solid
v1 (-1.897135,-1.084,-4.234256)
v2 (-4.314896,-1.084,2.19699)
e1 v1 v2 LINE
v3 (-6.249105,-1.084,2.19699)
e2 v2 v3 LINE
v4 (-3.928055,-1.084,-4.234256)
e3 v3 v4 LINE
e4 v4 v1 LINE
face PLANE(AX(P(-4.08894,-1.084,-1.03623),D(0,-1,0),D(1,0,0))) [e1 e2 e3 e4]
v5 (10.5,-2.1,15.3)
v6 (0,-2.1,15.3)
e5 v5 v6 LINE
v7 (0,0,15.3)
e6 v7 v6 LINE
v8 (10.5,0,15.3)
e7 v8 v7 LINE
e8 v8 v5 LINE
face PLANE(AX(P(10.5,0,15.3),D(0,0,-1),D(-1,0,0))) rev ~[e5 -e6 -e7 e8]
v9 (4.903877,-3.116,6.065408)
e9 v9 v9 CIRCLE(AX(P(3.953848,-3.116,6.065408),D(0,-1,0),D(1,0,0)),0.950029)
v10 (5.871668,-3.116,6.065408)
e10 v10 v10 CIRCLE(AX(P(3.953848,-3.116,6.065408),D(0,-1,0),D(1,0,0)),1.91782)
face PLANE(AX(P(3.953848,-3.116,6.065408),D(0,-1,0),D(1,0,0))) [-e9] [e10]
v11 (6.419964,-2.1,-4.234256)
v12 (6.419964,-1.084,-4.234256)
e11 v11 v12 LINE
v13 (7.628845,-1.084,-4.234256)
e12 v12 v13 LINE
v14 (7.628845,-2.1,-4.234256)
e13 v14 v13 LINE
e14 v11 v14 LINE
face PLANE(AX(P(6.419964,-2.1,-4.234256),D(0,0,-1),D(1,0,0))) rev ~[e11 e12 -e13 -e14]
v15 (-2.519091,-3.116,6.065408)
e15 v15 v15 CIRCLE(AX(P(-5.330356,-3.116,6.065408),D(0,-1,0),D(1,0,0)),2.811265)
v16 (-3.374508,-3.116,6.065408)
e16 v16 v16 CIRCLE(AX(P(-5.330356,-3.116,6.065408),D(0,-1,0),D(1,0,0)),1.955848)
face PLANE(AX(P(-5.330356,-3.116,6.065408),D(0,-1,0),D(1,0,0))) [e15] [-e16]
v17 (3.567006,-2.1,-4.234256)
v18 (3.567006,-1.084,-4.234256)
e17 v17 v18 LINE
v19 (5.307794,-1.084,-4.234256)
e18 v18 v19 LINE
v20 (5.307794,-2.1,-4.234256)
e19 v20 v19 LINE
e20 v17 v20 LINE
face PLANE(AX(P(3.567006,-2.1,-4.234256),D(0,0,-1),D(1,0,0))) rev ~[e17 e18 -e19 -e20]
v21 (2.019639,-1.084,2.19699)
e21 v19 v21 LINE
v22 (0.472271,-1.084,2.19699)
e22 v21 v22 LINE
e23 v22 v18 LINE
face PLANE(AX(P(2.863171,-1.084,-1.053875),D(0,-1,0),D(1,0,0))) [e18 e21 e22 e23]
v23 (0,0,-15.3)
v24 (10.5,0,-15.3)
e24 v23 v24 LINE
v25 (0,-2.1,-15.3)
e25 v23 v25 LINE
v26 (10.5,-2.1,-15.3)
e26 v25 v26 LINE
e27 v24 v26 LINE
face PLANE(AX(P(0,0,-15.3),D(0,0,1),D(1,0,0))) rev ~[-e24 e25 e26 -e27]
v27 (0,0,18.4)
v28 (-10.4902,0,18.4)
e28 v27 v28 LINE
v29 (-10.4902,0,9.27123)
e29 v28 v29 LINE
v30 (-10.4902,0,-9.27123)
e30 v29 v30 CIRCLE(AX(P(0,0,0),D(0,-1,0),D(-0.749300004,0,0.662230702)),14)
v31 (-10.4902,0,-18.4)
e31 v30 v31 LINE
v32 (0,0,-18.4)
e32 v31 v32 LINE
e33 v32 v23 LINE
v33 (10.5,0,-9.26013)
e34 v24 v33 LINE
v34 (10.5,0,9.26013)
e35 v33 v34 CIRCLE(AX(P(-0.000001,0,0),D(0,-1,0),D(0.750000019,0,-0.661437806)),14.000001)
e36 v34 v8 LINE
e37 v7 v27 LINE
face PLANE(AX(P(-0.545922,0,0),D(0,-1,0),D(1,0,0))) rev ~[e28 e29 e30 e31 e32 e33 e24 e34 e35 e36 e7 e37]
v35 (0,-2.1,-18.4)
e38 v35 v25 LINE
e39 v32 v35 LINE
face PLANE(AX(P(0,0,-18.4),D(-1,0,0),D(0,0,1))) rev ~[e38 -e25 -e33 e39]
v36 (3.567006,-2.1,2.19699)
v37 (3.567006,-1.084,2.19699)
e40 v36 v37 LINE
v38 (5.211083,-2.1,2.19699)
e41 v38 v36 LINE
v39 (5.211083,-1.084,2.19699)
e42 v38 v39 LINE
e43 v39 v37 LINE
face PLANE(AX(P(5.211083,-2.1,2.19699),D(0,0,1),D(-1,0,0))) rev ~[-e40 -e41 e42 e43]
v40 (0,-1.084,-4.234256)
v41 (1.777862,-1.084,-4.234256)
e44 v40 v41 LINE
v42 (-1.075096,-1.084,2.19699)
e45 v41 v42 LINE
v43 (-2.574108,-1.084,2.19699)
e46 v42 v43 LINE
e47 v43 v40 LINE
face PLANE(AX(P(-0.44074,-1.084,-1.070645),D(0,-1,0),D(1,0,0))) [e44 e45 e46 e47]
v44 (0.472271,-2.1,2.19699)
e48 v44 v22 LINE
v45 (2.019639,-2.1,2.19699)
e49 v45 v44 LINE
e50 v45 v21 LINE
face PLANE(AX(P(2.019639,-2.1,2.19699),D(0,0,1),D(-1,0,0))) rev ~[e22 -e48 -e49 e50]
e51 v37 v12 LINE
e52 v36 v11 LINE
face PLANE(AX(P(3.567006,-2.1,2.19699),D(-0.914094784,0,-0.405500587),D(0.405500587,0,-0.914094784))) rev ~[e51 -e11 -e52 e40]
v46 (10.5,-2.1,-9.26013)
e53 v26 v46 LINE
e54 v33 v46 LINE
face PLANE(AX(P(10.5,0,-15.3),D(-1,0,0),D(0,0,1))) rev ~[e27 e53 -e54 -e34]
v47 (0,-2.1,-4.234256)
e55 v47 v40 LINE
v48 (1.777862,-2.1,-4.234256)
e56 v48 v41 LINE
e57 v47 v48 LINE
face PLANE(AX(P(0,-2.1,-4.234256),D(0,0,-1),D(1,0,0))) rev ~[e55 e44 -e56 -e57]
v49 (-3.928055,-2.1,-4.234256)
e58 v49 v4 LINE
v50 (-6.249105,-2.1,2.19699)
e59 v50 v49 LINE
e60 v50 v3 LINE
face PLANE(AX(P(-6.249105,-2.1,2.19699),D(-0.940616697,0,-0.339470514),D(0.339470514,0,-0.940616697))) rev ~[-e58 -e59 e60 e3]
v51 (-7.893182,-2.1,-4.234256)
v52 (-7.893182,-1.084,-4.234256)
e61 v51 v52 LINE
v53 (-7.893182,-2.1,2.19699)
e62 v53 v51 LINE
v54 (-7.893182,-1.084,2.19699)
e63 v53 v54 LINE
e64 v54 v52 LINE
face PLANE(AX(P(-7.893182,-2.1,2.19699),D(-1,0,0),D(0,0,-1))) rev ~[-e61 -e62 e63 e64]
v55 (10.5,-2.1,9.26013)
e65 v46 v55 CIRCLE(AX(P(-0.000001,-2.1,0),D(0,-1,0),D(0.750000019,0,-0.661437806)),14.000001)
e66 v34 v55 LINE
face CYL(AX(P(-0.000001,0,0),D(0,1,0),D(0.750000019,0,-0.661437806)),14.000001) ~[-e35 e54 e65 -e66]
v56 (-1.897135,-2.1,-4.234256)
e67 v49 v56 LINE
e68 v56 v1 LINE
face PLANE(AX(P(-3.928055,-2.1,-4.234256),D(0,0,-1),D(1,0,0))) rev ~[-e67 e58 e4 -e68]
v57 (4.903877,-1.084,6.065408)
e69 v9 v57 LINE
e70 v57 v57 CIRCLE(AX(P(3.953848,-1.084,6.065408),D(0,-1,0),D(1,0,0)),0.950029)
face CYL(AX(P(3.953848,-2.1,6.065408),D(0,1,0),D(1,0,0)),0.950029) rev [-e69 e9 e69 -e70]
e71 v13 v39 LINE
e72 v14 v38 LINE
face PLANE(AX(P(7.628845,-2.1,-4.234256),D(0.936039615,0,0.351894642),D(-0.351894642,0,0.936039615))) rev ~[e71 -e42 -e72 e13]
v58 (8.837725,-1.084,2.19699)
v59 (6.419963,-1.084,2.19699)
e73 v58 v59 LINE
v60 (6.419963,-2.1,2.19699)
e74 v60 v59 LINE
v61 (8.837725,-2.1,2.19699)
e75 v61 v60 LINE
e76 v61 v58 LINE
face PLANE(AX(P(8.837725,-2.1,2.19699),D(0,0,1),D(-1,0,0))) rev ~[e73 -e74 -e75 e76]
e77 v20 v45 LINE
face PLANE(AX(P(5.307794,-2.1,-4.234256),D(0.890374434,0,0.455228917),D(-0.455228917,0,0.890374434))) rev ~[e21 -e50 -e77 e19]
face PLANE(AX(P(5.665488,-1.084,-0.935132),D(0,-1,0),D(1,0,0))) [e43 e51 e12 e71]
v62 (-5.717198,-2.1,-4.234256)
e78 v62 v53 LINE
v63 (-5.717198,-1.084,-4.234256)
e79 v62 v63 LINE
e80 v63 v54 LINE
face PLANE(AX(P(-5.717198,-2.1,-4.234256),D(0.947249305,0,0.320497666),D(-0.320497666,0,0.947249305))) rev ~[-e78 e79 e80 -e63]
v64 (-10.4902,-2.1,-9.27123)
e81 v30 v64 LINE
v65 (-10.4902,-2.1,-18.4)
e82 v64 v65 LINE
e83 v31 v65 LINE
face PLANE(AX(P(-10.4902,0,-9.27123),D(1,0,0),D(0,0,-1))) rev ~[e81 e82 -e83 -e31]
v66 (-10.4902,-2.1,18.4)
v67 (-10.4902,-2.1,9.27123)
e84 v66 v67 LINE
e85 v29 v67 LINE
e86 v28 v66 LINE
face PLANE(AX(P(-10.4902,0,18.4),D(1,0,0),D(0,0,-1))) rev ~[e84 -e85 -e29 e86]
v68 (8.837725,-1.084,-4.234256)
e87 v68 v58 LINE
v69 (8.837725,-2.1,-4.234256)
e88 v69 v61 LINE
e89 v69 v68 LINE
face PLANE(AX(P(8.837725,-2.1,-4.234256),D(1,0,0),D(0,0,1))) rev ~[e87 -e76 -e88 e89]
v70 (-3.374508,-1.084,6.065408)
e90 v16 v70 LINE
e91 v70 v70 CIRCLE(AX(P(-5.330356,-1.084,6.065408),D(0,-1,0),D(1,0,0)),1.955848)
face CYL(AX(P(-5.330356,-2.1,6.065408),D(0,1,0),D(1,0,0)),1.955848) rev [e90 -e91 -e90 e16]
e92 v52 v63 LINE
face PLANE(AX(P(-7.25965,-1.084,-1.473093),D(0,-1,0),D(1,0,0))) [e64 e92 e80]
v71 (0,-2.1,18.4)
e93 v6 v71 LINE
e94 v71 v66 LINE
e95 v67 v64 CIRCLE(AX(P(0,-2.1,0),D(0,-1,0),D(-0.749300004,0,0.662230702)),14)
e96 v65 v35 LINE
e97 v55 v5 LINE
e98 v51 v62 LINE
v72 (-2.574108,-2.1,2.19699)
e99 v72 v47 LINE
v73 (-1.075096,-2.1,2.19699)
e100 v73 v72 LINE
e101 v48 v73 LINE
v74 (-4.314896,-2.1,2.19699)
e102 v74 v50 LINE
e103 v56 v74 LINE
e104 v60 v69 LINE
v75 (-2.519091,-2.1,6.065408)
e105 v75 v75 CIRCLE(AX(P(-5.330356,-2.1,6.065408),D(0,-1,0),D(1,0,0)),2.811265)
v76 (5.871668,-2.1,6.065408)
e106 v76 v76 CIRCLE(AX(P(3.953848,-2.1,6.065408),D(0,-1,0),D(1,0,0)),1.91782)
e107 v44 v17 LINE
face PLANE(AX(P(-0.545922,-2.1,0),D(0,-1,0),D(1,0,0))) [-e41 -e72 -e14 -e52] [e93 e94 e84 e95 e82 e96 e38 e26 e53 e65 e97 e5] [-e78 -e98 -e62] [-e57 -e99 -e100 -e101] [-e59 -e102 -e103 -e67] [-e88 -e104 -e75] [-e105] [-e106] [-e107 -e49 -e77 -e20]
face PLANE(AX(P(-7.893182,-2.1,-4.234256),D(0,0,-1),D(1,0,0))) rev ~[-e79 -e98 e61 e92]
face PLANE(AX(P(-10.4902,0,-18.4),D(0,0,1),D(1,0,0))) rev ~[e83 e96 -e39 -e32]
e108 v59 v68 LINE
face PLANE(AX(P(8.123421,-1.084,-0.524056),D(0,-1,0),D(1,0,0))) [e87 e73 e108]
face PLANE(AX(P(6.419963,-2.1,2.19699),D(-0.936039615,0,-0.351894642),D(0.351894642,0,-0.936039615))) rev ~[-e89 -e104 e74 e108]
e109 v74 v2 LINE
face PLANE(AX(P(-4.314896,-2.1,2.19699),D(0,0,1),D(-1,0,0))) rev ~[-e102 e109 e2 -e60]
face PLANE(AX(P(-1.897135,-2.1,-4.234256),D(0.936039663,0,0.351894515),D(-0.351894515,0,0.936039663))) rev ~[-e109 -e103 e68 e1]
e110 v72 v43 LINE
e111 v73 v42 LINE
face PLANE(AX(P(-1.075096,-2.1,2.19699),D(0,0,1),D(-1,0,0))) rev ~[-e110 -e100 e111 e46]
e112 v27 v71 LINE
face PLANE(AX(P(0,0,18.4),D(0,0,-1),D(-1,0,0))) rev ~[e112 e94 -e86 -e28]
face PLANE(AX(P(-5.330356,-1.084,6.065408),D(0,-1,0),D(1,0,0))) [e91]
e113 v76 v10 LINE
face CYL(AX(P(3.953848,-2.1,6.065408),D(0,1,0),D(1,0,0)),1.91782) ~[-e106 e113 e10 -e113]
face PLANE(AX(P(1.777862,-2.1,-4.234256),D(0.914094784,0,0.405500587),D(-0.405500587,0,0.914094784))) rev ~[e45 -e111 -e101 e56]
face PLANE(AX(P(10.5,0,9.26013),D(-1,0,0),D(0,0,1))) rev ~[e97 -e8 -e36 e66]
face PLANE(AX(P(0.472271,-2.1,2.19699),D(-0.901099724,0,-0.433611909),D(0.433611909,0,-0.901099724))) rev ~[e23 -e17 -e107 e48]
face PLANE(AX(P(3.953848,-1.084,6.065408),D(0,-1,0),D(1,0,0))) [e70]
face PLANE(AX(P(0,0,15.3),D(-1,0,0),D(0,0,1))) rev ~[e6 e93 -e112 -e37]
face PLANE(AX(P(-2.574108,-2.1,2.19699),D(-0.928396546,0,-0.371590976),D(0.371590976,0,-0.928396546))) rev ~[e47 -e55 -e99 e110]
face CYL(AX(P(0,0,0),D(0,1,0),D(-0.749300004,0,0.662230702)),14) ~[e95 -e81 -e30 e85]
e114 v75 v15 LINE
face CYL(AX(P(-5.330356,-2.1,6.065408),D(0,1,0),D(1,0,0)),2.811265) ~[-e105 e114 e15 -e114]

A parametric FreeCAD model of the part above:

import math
import FreeCAD as App
import Part
import Sketcher

V = App.Vector
Q = App.Units.Quantity

doc = App.newDocument("Part")
body = doc.addObject("PartDesign::Body", "Body")

# Sketch on XZ plane
sketch1 = doc.addObject("Sketcher::SketchObject", "Sketch")
body.addObject(sketch1)
sketch1.AttachmentSupport = (doc.XZ_Plane, [""])
sketch1.MapMode = "FlatFace"
sketch1.addGeometry(Part.LineSegment(V(-10.5, 18.4, 0), V(-10.5, 9.3, 0)), False)
sketch1.addGeometry(Part.ArcOfCircle(Part.Circle(V(0, 0, 0), V(0, 0, 1), 14), math.radians(139), math.radians(221)), False)
sketch1.addGeometry(Part.LineSegment(V(-10.5, -9.3, 0), V(-10.5, -18.4, 0)), False)
sketch1.addGeometry(Part.LineSegment(V(-10.5, -18.4, 0), V(0, -18.4, 0)), False)
sketch1.addGeometry(Part.LineSegment(V(0, -18.4, 0), V(0, -15.3, 0)), False)
sketch1.addGeometry(Part.LineSegment(V(0, -15.3, 0), V(10.5, -15.3, 0)), False)
sketch1.addGeometry(Part.LineSegment(V(10.5, -15.3, 0), V(10.5, -9.3, 0)), False)
sketch1.addGeometry(Part.ArcOfCircle(Part.Circle(V(0, 0, 0), V(0, 0, 1), 14), math.radians(-41), math.radians(41)), False)
sketch1.addGeometry(Part.LineSegment(V(10.5, 9.3, 0), V(10.5, 15.3, 0)), False)
sketch1.addGeometry(Part.LineSegment(V(10.5, 15.3, 0), V(0, 15.3, 0)), False)
sketch1.addGeometry(Part.LineSegment(V(0, 15.3, 0), V(0, 18.4, 0)), False)
sketch1.addGeometry(Part.LineSegment(V(0, 18.4, 0), V(-10.5, 18.4, 0)), False)
sketch1.addConstraint(Sketcher.Constraint("Coincident", 0, 2, 1, 1))
sketch1.addConstraint(Sketcher.Constraint("Coincident", 1, 2, 2, 1))
sketch1.addConstraint(Sketcher.Constraint("Coincident", 2, 2, 3, 1))
sketch1.addConstraint(Sketcher.Constraint("Coincident", 3, 2, 4, 1))
sketch1.addConstraint(Sketcher.Constraint("Coincident", 4, 2, 5, 1))
sketch1.addConstraint(Sketcher.Constraint("Coincident", 5, 2, 6, 1))
sketch1.addConstraint(Sketcher.Constraint("Coincident", 6, 2, 7, 1))
sketch1.addConstraint(Sketcher.Constraint("Coincident", 7, 2, 8, 1))
sketch1.addConstraint(Sketcher.Constraint("Coincident", 8, 2, 9, 1))
sketch1.addConstraint(Sketcher.Constraint("Coincident", 9, 2, 10, 1))
sketch1.addConstraint(Sketcher.Constraint("Coincident", 10, 2, 11, 1))
sketch1.addConstraint(Sketcher.Constraint("Coincident", 11, 2, 0, 1))
sketch1.addConstraint(Sketcher.Constraint("Vertical", 0))
sketch1.addConstraint(Sketcher.Constraint("Vertical", 2))
sketch1.addConstraint(Sketcher.Constraint("Horizontal", 3))
sketch1.addConstraint(Sketcher.Constraint("Vertical", 4))
sketch1.addConstraint(Sketcher.Constraint("Horizontal", 5))
sketch1.addConstraint(Sketcher.Constraint("Vertical", 6))
sketch1.addConstraint(Sketcher.Constraint("Vertical", 8))
sketch1.addConstraint(Sketcher.Constraint("Horizontal", 9))
sketch1.addConstraint(Sketcher.Constraint("Vertical", 10))
sketch1.addConstraint(Sketcher.Constraint("Horizontal", 11))
sketch1.addConstraint(Sketcher.Constraint("Coincident", 1, 3, -1, 1))
sketch1.addConstraint(Sketcher.Constraint("Coincident", 7, 3, -1, 1))
sketch1.addConstraint(Sketcher.Constraint("Equal", 1, 7))
sketch1.addConstraint(Sketcher.Constraint("Symmetric", 4, 2, 9, 2, -1, 1))
sketch1.addConstraint(Sketcher.Constraint("Symmetric", 3, 2, 10, 2, -1))
sketch1.addConstraint(Sketcher.Constraint("Vertical", 0, 2, 1, 2))
sketch1.addConstraint(Sketcher.Constraint("Vertical", 6, 2, 7, 2))
sketch1.addConstraint(Sketcher.Constraint("Radius", 1, Q("14 mm")))
sketch1.addConstraint(Sketcher.Constraint("DistanceX", 5, 1, 5, 2, Q("10.5 mm")))
sketch1.addConstraint(Sketcher.Constraint("DistanceY", 4, 1, 4, 2, Q("3.1 mm")))
sketch1.addConstraint(Sketcher.Constraint("DistanceY", 2, 2, -1, 1, Q("18.4 mm")))
sketch1.addConstraint(Sketcher.Constraint("DistanceX", 3, 1, 3, 2, Q("10.4902 mm")))
pad1 = doc.addObject("PartDesign::Pad", "Pad")
body.addObject(pad1)
pad1.Profile = sketch1
pad1.Length = 2.1

# Sketch on XZ plane
sketch2 = doc.addObject("Sketcher::SketchObject", "Sketch001")
body.addObject(sketch2)
sketch2.AttachmentSupport = (doc.XZ_Plane, [""])
sketch2.MapMode = "FlatFace"
sketch2.AttachmentOffset = App.Placement(V(0, 0, 2.1), App.Rotation())
sketch2.addGeometry(Part.LineSegment(V(-5.7, -4.2, 0), V(-7.9, 2.2, 0)), False)
sketch2.addGeometry(Part.LineSegment(V(-7.9, 2.2, 0), V(-7.9, -4.2, 0)), False)
sketch2.addGeometry(Part.LineSegment(V(-7.9, -4.2, 0), V(-5.7, -4.2, 0)), False)
sketch2.addGeometry(Part.LineSegment(V(-4.3, 2.2, 0), V(-6.2, 2.2, 0)), False)
sketch2.addGeometry(Part.LineSegment(V(-6.2, 2.2, 0), V(-3.9, -4.2, 0)), False)
sketch2.addGeometry(Part.LineSegment(V(-3.9, -4.2, 0), V(-1.9, -4.2, 0)), False)
sketch2.addGeometry(Part.LineSegment(V(-1.9, -4.2, 0), V(-4.3, 2.2, 0)), False)
sketch2.addGeometry(Part.LineSegment(V(-1.1, 2.2, 0), V(-2.6, 2.2, 0)), False)
sketch2.addGeometry(Part.LineSegment(V(-2.6, 2.2, 0), V(0, -4.2, 0)), False)
sketch2.addGeometry(Part.LineSegment(V(0, -4.2, 0), V(1.8, -4.2, 0)), False)
sketch2.addGeometry(Part.LineSegment(V(1.8, -4.2, 0), V(-1.1, 2.2, 0)), False)
sketch2.addGeometry(Part.LineSegment(V(2, 2.2, 0), V(0.5, 2.2, 0)), False)
sketch2.addGeometry(Part.LineSegment(V(0.5, 2.2, 0), V(3.6, -4.2, 0)), False)
sketch2.addGeometry(Part.LineSegment(V(3.6, -4.2, 0), V(5.3, -4.2, 0)), False)
sketch2.addGeometry(Part.LineSegment(V(5.3, -4.2, 0), V(2, 2.2, 0)), False)
sketch2.addGeometry(Part.LineSegment(V(5.2, 2.2, 0), V(3.6, 2.2, 0)), False)
sketch2.addGeometry(Part.LineSegment(V(3.6, 2.2, 0), V(6.4, -4.2, 0)), False)
sketch2.addGeometry(Part.LineSegment(V(6.4, -4.2, 0), V(7.6, -4.2, 0)), False)
sketch2.addGeometry(Part.LineSegment(V(7.6, -4.2, 0), V(5.2, 2.2, 0)), False)
sketch2.addGeometry(Part.LineSegment(V(8.8, 2.2, 0), V(6.4, 2.2, 0)), False)
sketch2.addGeometry(Part.LineSegment(V(6.4, 2.2, 0), V(8.8, -4.2, 0)), False)
sketch2.addGeometry(Part.LineSegment(V(8.8, -4.2, 0), V(8.8, 2.2, 0)), False)
sketch2.addGeometry(Part.Circle(V(-5.3, 6.1, 0), V(0, 0, 1), 2), False)
sketch2.addGeometry(Part.Circle(V(4, 6.1, 0), V(0, 0, 1), 1), False)
sketch2.addConstraint(Sketcher.Constraint("Coincident", 0, 2, 1, 1))
sketch2.addConstraint(Sketcher.Constraint("Coincident", 1, 2, 2, 1))
sketch2.addConstraint(Sketcher.Constraint("Coincident", 2, 2, 0, 1))
sketch2.addConstraint(Sketcher.Constraint("Coincident", 3, 2, 4, 1))
sketch2.addConstraint(Sketcher.Constraint("Coincident", 4, 2, 5, 1))
sketch2.addConstraint(Sketcher.Constraint("Coincident", 5, 2, 6, 1))
sketch2.addConstraint(Sketcher.Constraint("Coincident", 6, 2, 3, 1))
sketch2.addConstraint(Sketcher.Constraint("Coincident", 7, 2, 8, 1))
sketch2.addConstraint(Sketcher.Constraint("Coincident", 8, 2, 9, 1))
sketch2.addConstraint(Sketcher.Constraint("Coincident", 9, 2, 10, 1))
sketch2.addConstraint(Sketcher.Constraint("Coincident", 10, 2, 7, 1))
sketch2.addConstraint(Sketcher.Constraint("Coincident", 11, 2, 12, 1))
sketch2.addConstraint(Sketcher.Constraint("Coincident", 12, 2, 13, 1))
sketch2.addConstraint(Sketcher.Constraint("Coincident", 13, 2, 14, 1))
sketch2.addConstraint(Sketcher.Constraint("Coincident", 14, 2, 11, 1))
sketch2.addConstraint(Sketcher.Constraint("Coincident", 15, 2, 16, 1))
sketch2.addConstraint(Sketcher.Constraint("Coincident", 16, 2, 17, 1))
sketch2.addConstraint(Sketcher.Constraint("Coincident", 17, 2, 18, 1))
sketch2.addConstraint(Sketcher.Constraint("Coincident", 18, 2, 15, 1))
sketch2.addConstraint(Sketcher.Constraint("Coincident", 19, 2, 20, 1))
sketch2.addConstraint(Sketcher.Constraint("Coincident", 20, 2, 21, 1))
sketch2.addConstraint(Sketcher.Constraint("Coincident", 21, 2, 19, 1))
sketch2.addConstraint(Sketcher.Constraint("Vertical", 1))
sketch2.addConstraint(Sketcher.Constraint("Horizontal", 2))
sketch2.addConstraint(Sketcher.Constraint("Horizontal", 3))
sketch2.addConstraint(Sketcher.Constraint("Horizontal", 5))
sketch2.addConstraint(Sketcher.Constraint("Horizontal", 7))
sketch2.addConstraint(Sketcher.Constraint("Horizontal", 9))
sketch2.addConstraint(Sketcher.Constraint("Horizontal", 11))
sketch2.addConstraint(Sketcher.Constraint("Horizontal", 13))
sketch2.addConstraint(Sketcher.Constraint("Horizontal", 15))
sketch2.addConstraint(Sketcher.Constraint("Horizontal", 17))
sketch2.addConstraint(Sketcher.Constraint("Horizontal", 19))
sketch2.addConstraint(Sketcher.Constraint("Vertical", 21))
sketch2.addConstraint(Sketcher.Constraint("PointOnObject", 8, 2, -2))
sketch2.addConstraint(Sketcher.Constraint("Parallel", 10, 16))
sketch2.addConstraint(Sketcher.Constraint("Parallel", 6, 18))
sketch2.addConstraint(Sketcher.Constraint("Parallel", 18, 20))
sketch2.addConstraint(Sketcher.Constraint("Horizontal", 22, 3, 23, 3))
sketch2.addConstraint(Sketcher.Constraint("Horizontal", 0, 2, 3, 2))
sketch2.addConstraint(Sketcher.Constraint("Horizontal", 2, 2, 4, 2))
sketch2.addConstraint(Sketcher.Constraint("Horizontal", 6, 2, 7, 2))
sketch2.addConstraint(Sketcher.Constraint("Horizontal", 5, 2, 8, 2))
sketch2.addConstraint(Sketcher.Constraint("Horizontal", 10, 2, 11, 2))
sketch2.addConstraint(Sketcher.Constraint("Horizontal", 9, 2, 12, 2))
sketch2.addConstraint(Sketcher.Constraint("Horizontal", 14, 2, 15, 2))
sketch2.addConstraint(Sketcher.Constraint("Horizontal", 13, 2, 16, 2))
sketch2.addConstraint(Sketcher.Constraint("Horizontal", 18, 2, 19, 2))
sketch2.addConstraint(Sketcher.Constraint("Horizontal", 17, 2, 20, 2))
sketch2.addConstraint(Sketcher.Constraint("Vertical", 12, 2, 15, 2))
sketch2.addConstraint(Sketcher.Constraint("Vertical", 16, 2, 19, 2))
sketch2.addConstraint(Sketcher.Constraint("Diameter", 22, Q("3.911696 mm")))
sketch2.addConstraint(Sketcher.Constraint("Diameter", 23, Q("1.900058 mm")))
sketch2.addConstraint(Sketcher.Constraint("Distance", 6, Q("6.870698 mm")))
sketch2.addConstraint(Sketcher.Constraint("DistanceX", 3, 2, 3, 1, Q("1.934209 mm")))
sketch2.addConstraint(Sketcher.Constraint("DistanceX", 5, 1, 5, 2, Q("2.03092 mm")))
sketch2.addConstraint(Sketcher.Constraint("DistanceX", 7, 2, 7, 1, Q("1.499012 mm")))
sketch2.addConstraint(Sketcher.Constraint("DistanceX", 11, 2, 11, 1, Q("1.547368 mm")))
sketch2.addConstraint(Sketcher.Constraint("DistanceX", 13, 1, 13, 2, Q("1.740788 mm")))
sketch2.addConstraint(Sketcher.Constraint("DistanceX", 17, 1, 17, 2, Q("1.208881 mm")))
sketch2.addConstraint(Sketcher.Constraint("DistanceX", 22, 3, 4, 2, Q("1.402301 mm")))
sketch2.addConstraint(Sketcher.Constraint("DistanceX", 2, 2, 6, 2, Q("1.402302 mm")))
sketch2.addConstraint(Sketcher.Constraint("DistanceX", 6, 2, 10, 2, Q("3.2398 mm")))
sketch2.addConstraint(Sketcher.Constraint("Distance", 0, Q("6.789391 mm")))
sketch2.addConstraint(Sketcher.Constraint("Distance", 8, Q("6.927262 mm")))
sketch2.addConstraint(Sketcher.Constraint("Distance", 14, Q("7.22308 mm")))
sketch2.addConstraint(Sketcher.Constraint("DistanceX", 2, 1, 2, 2, Q("2.175984 mm")))
sketch2.addConstraint(Sketcher.Constraint("DistanceX", 9, 1, 9, 2, Q("1.777862 mm")))
sketch2.addConstraint(Sketcher.Constraint("DistanceY", -1, 1, 0, 2, Q("2.19699 mm")))
sketch2.addConstraint(Sketcher.Constraint("DistanceX", -1, 1, 11, 2, Q("0.472271 mm")))
sketch2.addConstraint(Sketcher.Constraint("DistanceX", 0, 2, 23, 3, Q("11.84703 mm")))
sketch2.addConstraint(Sketcher.Constraint("DistanceY", -1, 1, 22, 3, Q("6.065408 mm")))
pocket1 = doc.addObject("PartDesign::Pocket", "Pocket")
body.addObject(pocket1)
pocket1.Profile = sketch2
pocket1.Length = 1.016

# Sketch on XZ plane
sketch3 = doc.addObject("Sketcher::SketchObject", "Sketch002")
body.addObject(sketch3)
sketch3.AttachmentSupport = (doc.XZ_Plane, [""])
sketch3.MapMode = "FlatFace"
sketch3.AttachmentOffset = App.Placement(V(0, 0, 2.1), App.Rotation())
sketch3.addGeometry(Part.Circle(V(-5.3, 6.1, 0), V(0, 0, 1), 2.8), False)
sketch3.addGeometry(Part.Circle(V(-5.3, 6.1, 0), V(0, 0, 1), 2), False)
sketch3.addGeometry(Part.Circle(V(4, 6.1, 0), V(0, 0, 1), 1.9), False)
sketch3.addGeometry(Part.Circle(V(4, 6.1, 0), V(0, 0, 1), 1), False)
sketch3.addConstraint(Sketcher.Constraint("Coincident", 1, 3, 0, 3))
sketch3.addConstraint(Sketcher.Constraint("Coincident", 3, 3, 2, 3))
sketch3.addConstraint(Sketcher.Constraint("Horizontal", 1, 3, 2, 3))
sketch3.addConstraint(Sketcher.Constraint("Diameter", 0, Q("5.62253 mm")))
sketch3.addConstraint(Sketcher.Constraint("Diameter", 2, Q("3.83564 mm")))
sketch3.addConstraint(Sketcher.Constraint("Diameter", 1, Q("3.911696 mm")))
sketch3.addConstraint(Sketcher.Constraint("Diameter", 3, Q("1.900058 mm")))
sketch3.addConstraint(Sketcher.Constraint("DistanceX", 0, 3, -1, 1, Q("5.330356 mm")))
sketch3.addConstraint(Sketcher.Constraint("DistanceY", -1, 1, 0, 3, Q("6.065408 mm")))
sketch3.addConstraint(Sketcher.Constraint("DistanceX", -1, 1, 2, 3, Q("3.953848 mm")))
pad2 = doc.addObject("PartDesign::Pad", "Pad001")
body.addObject(pad2)
pad2.Profile = sketch3
pad2.Length = 1.016

doc.recompute()
